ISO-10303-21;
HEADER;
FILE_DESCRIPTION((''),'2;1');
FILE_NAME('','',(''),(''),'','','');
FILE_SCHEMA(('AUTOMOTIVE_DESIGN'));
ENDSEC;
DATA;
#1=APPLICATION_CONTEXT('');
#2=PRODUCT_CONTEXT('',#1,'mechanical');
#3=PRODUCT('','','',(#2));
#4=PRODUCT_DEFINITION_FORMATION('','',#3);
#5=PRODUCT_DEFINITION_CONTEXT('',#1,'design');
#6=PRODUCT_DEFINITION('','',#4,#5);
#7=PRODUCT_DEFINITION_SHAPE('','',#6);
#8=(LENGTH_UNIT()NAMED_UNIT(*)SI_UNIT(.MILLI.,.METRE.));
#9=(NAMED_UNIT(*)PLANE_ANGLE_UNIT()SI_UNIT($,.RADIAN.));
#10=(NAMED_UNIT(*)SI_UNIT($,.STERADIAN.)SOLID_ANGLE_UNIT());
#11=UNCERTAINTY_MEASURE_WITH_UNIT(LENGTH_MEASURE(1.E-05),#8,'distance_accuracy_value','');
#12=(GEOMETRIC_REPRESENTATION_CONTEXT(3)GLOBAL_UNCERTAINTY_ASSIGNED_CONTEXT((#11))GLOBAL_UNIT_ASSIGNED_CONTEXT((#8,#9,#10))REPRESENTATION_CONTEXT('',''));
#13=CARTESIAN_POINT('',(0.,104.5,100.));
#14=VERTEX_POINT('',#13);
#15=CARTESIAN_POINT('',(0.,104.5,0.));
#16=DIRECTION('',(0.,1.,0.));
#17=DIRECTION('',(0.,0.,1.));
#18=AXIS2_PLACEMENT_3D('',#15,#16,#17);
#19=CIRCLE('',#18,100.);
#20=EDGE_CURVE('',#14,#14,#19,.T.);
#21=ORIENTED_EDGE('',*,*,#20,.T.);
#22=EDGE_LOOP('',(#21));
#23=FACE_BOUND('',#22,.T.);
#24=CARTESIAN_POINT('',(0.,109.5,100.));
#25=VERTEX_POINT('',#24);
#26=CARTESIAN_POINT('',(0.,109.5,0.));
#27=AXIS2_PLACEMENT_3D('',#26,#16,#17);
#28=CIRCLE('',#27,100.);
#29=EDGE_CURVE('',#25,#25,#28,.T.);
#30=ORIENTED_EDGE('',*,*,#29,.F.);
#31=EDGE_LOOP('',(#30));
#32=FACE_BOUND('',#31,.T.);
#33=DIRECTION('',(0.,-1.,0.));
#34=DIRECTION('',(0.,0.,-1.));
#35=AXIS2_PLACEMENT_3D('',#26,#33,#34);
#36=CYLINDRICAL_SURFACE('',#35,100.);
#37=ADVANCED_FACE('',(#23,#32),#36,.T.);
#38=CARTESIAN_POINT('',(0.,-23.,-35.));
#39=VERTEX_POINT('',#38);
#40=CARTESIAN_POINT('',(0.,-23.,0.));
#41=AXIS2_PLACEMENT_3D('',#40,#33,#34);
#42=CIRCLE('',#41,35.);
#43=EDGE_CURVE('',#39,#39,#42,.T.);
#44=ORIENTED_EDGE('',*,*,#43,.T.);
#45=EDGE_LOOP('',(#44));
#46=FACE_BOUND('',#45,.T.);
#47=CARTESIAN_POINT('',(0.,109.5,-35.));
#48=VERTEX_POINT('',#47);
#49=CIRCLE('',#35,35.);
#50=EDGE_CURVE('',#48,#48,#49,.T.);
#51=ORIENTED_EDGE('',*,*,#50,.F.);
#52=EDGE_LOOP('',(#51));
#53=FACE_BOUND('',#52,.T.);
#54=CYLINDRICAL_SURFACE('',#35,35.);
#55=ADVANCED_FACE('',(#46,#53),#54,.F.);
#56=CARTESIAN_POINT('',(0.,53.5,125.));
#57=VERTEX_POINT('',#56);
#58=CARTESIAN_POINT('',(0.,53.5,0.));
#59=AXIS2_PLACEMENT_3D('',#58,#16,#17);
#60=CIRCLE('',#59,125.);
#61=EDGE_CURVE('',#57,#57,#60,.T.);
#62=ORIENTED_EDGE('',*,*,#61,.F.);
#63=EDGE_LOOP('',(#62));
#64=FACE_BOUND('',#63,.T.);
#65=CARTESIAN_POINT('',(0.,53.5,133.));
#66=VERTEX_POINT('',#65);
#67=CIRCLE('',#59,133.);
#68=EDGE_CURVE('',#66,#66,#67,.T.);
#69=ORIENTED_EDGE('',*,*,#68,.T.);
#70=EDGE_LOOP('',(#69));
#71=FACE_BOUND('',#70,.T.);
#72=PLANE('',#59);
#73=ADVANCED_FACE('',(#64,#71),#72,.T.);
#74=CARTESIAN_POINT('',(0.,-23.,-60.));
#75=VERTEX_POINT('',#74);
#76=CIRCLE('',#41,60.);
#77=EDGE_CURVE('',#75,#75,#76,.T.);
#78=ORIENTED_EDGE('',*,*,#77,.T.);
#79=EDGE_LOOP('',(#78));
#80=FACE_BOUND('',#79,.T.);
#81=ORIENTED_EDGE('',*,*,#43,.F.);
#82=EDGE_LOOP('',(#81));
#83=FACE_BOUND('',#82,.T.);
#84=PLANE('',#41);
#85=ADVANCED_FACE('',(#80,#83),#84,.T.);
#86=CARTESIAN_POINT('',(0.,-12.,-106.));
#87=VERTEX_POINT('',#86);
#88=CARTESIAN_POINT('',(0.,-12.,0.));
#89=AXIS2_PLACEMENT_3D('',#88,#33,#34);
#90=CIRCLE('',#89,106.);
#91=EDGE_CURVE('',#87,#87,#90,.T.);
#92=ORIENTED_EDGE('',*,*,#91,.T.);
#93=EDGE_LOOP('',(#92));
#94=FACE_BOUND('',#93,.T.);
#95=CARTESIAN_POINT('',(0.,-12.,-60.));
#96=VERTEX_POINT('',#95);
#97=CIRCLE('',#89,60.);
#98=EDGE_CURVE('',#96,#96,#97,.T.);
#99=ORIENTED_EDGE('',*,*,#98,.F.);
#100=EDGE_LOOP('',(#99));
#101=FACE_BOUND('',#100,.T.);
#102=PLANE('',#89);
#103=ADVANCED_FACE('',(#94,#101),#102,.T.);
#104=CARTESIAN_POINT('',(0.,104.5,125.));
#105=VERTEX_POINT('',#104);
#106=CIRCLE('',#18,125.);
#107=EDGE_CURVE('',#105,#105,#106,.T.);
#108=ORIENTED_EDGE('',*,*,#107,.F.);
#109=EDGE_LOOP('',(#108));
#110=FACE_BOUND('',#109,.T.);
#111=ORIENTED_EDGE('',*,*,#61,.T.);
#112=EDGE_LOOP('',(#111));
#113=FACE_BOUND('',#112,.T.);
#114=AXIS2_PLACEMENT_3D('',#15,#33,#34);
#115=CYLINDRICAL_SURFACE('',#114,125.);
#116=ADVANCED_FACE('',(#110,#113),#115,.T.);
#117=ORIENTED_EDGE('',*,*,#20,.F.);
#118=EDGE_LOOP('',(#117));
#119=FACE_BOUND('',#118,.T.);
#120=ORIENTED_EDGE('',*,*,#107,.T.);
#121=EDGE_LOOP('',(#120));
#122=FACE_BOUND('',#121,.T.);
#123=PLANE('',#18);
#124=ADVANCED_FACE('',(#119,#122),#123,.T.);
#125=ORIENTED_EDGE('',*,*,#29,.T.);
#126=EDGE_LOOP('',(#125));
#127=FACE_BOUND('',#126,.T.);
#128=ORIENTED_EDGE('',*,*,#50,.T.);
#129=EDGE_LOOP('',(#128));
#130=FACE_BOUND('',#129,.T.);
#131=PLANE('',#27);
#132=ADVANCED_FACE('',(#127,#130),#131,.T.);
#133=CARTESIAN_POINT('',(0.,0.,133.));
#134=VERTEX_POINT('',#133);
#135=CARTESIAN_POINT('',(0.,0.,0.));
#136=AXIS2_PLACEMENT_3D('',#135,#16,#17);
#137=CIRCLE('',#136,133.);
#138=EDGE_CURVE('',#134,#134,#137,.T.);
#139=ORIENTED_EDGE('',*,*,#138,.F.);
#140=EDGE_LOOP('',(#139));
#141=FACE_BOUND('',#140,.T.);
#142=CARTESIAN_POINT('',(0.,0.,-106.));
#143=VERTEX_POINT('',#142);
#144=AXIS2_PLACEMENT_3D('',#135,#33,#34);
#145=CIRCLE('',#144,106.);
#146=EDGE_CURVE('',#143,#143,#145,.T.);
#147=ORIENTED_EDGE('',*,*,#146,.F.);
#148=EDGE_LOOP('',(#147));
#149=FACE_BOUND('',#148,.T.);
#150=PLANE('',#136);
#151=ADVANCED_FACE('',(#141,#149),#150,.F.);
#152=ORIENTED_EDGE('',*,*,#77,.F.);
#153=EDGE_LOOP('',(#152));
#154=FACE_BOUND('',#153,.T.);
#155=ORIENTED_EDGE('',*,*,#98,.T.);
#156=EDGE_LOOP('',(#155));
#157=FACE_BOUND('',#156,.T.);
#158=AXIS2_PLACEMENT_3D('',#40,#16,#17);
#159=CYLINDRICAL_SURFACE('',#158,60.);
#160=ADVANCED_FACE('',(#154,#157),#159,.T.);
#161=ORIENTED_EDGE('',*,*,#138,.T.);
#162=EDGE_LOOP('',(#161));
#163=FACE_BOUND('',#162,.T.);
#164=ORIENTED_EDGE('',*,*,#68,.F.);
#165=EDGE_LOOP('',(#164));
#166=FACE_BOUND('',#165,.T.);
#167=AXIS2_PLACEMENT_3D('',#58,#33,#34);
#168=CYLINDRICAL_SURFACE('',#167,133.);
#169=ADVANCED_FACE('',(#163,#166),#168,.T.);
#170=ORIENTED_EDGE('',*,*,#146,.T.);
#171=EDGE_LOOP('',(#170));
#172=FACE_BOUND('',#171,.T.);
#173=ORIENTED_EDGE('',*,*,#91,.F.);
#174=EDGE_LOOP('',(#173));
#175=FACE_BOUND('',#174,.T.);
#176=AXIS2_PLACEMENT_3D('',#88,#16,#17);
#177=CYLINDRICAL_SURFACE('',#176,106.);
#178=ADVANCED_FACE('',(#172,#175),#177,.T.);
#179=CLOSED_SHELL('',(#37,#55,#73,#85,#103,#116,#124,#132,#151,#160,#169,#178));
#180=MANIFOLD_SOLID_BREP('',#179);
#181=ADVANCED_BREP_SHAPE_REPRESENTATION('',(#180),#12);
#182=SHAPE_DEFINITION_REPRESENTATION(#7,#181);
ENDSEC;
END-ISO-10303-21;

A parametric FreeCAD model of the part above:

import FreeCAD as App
import Part
import Sketcher
Q = App.Units.Quantity

doc = App.newDocument("Part")
body = doc.addObject("PartDesign::Body", "Body")

sketch1 = body.newObject("Sketcher::SketchObject", "Sketch")
sketch1.AttachmentSupport = (doc.getObject("XZ_Plane"), [""])
sketch1.MapMode = "FlatFace"
sketch1.addGeometry(Part.Circle(App.Vector(0, 0, 0), App.Vector(0, 0, 1), 133), False)
sketch1.addConstraint([
    Sketcher.Constraint("Coincident", 0, 3, -1, 1),
    Sketcher.Constraint("Diameter", 0, Q("266 mm")),
])
pad1 = body.newObject("PartDesign::Pad", "Pad")
pad1.Profile = sketch1
pad1.Length = 53.5
pad1.Reversed = True

sketch2 = body.newObject("Sketcher::SketchObject", "Sketch001")
sketch2.AttachmentSupport = (doc.getObject("XZ_Plane"), [""])
sketch2.MapMode = "FlatFace"
sketch2.AttachmentOffset = App.Placement(App.Vector(0, 0, -53.5), App.Rotation())
sketch2.addGeometry(Part.Circle(App.Vector(0, 0, 0), App.Vector(0, 0, 1), 125), False)
sketch2.addConstraint([
    Sketcher.Constraint("Coincident", 0, 3, -1, 1),
    Sketcher.Constraint("Diameter", 0, Q("250 mm")),
])
pad2 = body.newObject("PartDesign::Pad", "Pad001")
pad2.Profile = sketch2
pad2.Length = 51
pad2.Reversed = True

sketch3 = body.newObject("Sketcher::SketchObject", "Sketch002")
sketch3.AttachmentSupport = (doc.getObject("XZ_Plane"), [""])
sketch3.MapMode = "FlatFace"
sketch3.AttachmentOffset = App.Placement(App.Vector(0, 0, -104.5), App.Rotation())
sketch3.addGeometry(Part.Circle(App.Vector(0, 0, 0), App.Vector(0, 0, 1), 100), False)
sketch3.addConstraint([
    Sketcher.Constraint("Coincident", 0, 3, -1, 1),
    Sketcher.Constraint("Diameter", 0, Q("200 mm")),
])
pad3 = body.newObject("PartDesign::Pad", "Pad002")
pad3.Profile = sketch3
pad3.Length = 5
pad3.Reversed = True

sketch4 = body.newObject("Sketcher::SketchObject", "Sketch003")
sketch4.AttachmentSupport = (doc.getObject("XZ_Plane"), [""])
sketch4.MapMode = "FlatFace"
sketch4.addGeometry(Part.Circle(App.Vector(0, 0, 0), App.Vector(0, 0, 1), 106), False)
sketch4.addConstraint([
    Sketcher.Constraint("Coincident", 0, 3, -1, 1),
    Sketcher.Constraint("Diameter", 0, Q("212 mm")),
])
pad4 = body.newObject("PartDesign::Pad", "Pad003")
pad4.Profile = sketch4
pad4.Length = 12

sketch5 = body.newObject("Sketcher::SketchObject", "Sketch004")
sketch5.AttachmentSupport = (doc.getObject("XZ_Plane"), [""])
sketch5.MapMode = "FlatFace"
sketch5.AttachmentOffset = App.Placement(App.Vector(0, 0, 12), App.Rotation())
sketch5.addGeometry(Part.Circle(App.Vector(0, 0, 0), App.Vector(0, 0, 1), 60), False)
sketch5.addConstraint([
    Sketcher.Constraint("Coincident", 0, 3, -1, 1),
    Sketcher.Constraint("Diameter", 0, Q("120 mm")),
])
pad5 = body.newObject("PartDesign::Pad", "Pad004")
pad5.Profile = sketch5
pad5.Length = 11

sketch6 = body.newObject("Sketcher::SketchObject", "Sketch005")
sketch6.AttachmentSupport = (doc.getObject("XZ_Plane"), [""])
sketch6.MapMode = "FlatFace"
sketch6.AttachmentOffset = App.Placement(App.Vector(0, 0, 23), App.Rotation())
sketch6.addGeometry(Part.Circle(App.Vector(0, 0, 0), App.Vector(0, 0, 1), 35), False)
sketch6.addConstraint([
    Sketcher.Constraint("Coincident", 0, 3, -1, 1),
    Sketcher.Constraint("Diameter", 0, Q("70 mm")),
])
pocket1 = body.newObject("PartDesign::Pocket", "Pocket")
pocket1.Profile = sketch6
pocket1.Type = "ThroughAll"

doc.recompute()
